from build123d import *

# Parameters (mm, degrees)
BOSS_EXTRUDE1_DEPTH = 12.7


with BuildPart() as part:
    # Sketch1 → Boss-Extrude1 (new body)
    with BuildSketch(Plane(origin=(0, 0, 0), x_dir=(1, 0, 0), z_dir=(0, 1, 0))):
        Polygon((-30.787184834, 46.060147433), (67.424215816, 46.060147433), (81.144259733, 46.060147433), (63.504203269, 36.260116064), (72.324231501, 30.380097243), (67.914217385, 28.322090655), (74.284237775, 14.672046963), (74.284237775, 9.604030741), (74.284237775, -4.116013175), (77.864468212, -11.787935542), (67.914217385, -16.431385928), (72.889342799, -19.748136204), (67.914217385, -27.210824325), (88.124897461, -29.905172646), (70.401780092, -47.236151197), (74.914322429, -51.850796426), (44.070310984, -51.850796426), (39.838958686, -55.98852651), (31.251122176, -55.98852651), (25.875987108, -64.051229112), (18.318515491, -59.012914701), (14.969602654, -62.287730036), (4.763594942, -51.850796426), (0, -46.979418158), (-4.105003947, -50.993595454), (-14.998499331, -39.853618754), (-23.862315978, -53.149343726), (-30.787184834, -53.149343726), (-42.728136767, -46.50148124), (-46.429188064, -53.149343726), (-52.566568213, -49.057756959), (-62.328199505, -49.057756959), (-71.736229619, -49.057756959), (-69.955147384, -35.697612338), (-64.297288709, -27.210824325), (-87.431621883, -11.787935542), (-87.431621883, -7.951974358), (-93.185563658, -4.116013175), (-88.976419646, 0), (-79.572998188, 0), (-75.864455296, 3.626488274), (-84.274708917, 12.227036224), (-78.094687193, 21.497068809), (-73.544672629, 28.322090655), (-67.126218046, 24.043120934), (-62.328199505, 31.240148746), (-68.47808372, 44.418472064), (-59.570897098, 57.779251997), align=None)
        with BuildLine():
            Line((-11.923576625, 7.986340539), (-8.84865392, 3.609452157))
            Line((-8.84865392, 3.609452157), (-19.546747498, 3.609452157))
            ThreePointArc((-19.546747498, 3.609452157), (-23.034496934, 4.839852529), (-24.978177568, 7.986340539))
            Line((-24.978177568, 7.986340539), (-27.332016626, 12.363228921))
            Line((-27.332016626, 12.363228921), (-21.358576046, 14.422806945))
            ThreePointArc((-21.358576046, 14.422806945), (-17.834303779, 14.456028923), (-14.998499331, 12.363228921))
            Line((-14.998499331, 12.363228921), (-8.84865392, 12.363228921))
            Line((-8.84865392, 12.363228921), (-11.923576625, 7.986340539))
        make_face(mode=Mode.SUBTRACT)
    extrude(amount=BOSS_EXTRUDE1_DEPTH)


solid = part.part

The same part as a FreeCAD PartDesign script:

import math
import FreeCAD as App
import Part
import Sketcher
from FreeCAD import Vector
Q = App.Units.Quantity

doc = App.newDocument("Part")
body = doc.addObject("PartDesign::Body", "Body")

sketch1 = body.newObject("Sketcher::SketchObject", "Sketch")
sketch1.AttachmentSupport = (doc.getObject("XZ_Plane"), [""])
sketch1.MapMode = "FlatFace"
sketch1.addGeometry(Part.LineSegment(Vector(81.14426, -46.060147, 0), Vector(-30.787185, -46.060147, 0)), False)
sketch1.addGeometry(Part.LineSegment(Vector(-30.787185, -46.060147, 0), Vector(-59.570897, -57.779252, 0)), False)
sketch1.addGeometry(Part.LineSegment(Vector(-59.570897, -57.779252, 0), Vector(-68.478084, -44.418472, 0)), False)
sketch1.addGeometry(Part.LineSegment(Vector(-68.478084, -44.418472, 0), Vector(-62.3282, -31.240149, 0)), False)
sketch1.addGeometry(Part.LineSegment(Vector(-62.3282, -31.240149, 0), Vector(-67.126218, -24.043121, 0)), False)
sketch1.addGeometry(Part.LineSegment(Vector(-67.126218, -24.043121, 0), Vector(-73.544673, -28.322091, 0)), False)
sketch1.addGeometry(Part.LineSegment(Vector(-73.544673, -28.322091, 0), Vector(-78.094687, -21.497069, 0)), False)
sketch1.addGeometry(Part.LineSegment(Vector(-78.094687, -21.497069, 0), Vector(-84.274709, -12.227036, 0)), False)
sketch1.addGeometry(Part.LineSegment(Vector(-84.274709, -12.227036, 0), Vector(-75.864455, -3.626488, 0)), False)
sketch1.addGeometry(Part.LineSegment(Vector(-75.864455, -3.626488, 0), Vector(-79.572998, 0, 0)), False)
sketch1.addGeometry(Part.LineSegment(Vector(-79.572998, 0, 0), Vector(-88.97642, 0, 0)), False)
sketch1.addGeometry(Part.LineSegment(Vector(-88.97642, 0, 0), Vector(-93.185564, 4.116013, 0)), False)
sketch1.addGeometry(Part.LineSegment(Vector(-93.185564, 4.116013, 0), Vector(-87.431622, 7.951974, 0)), False)
sketch1.addGeometry(Part.LineSegment(Vector(-87.431622, 7.951974, 0), Vector(-87.431622, 11.787936, 0)), False)
sketch1.addGeometry(Part.LineSegment(Vector(-87.431622, 11.787936, 0), Vector(-64.297289, 27.210824, 0)), False)
sketch1.addGeometry(Part.LineSegment(Vector(-64.297289, 27.210824, 0), Vector(-69.955147, 35.697612, 0)), False)
sketch1.addGeometry(Part.LineSegment(Vector(-69.955147, 35.697612, 0), Vector(-71.73623, 49.057757, 0)), False)
sketch1.addGeometry(Part.LineSegment(Vector(-71.73623, 49.057757, 0), Vector(-52.566568, 49.057757, 0)), False)
sketch1.addGeometry(Part.LineSegment(Vector(-52.566568, 49.057757, 0), Vector(-46.429188, 53.149344, 0)), False)
sketch1.addGeometry(Part.LineSegment(Vector(-46.429188, 53.149344, 0), Vector(-42.728137, 46.501481, 0)), False)
sketch1.addGeometry(Part.LineSegment(Vector(-42.728137, 46.501481, 0), Vector(-30.787185, 53.149344, 0)), False)
sketch1.addGeometry(Part.LineSegment(Vector(-30.787185, 53.149344, 0), Vector(-23.862316, 53.149344, 0)), False)
sketch1.addGeometry(Part.LineSegment(Vector(-23.862316, 53.149344, 0), Vector(-14.998499, 39.853619, 0)), False)
sketch1.addGeometry(Part.LineSegment(Vector(-14.998499, 39.853619, 0), Vector(-4.105004, 50.993595, 0)), False)
sketch1.addGeometry(Part.LineSegment(Vector(-4.105004, 50.993595, 0), Vector(0, 46.979418, 0)), False)
sketch1.addGeometry(Part.LineSegment(Vector(0, 46.979418, 0), Vector(4.763595, 51.850796, 0)), False)
sketch1.addGeometry(Part.LineSegment(Vector(4.763595, 51.850796, 0), Vector(14.969603, 62.28773, 0)), False)
sketch1.addGeometry(Part.LineSegment(Vector(14.969603, 62.28773, 0), Vector(18.318515, 59.012915, 0)), False)
sketch1.addGeometry(Part.LineSegment(Vector(18.318515, 59.012915, 0), Vector(25.875987, 64.051229, 0)), False)
sketch1.addGeometry(Part.LineSegment(Vector(25.875987, 64.051229, 0), Vector(31.251122, 55.988527, 0)), False)
sketch1.addGeometry(Part.LineSegment(Vector(31.251122, 55.988527, 0), Vector(39.838959, 55.988527, 0)), False)
sketch1.addGeometry(Part.LineSegment(Vector(39.838959, 55.988527, 0), Vector(44.070311, 51.850796, 0)), False)
sketch1.addGeometry(Part.LineSegment(Vector(44.070311, 51.850796, 0), Vector(74.914322, 51.850796, 0)), False)
sketch1.addGeometry(Part.LineSegment(Vector(74.914322, 51.850796, 0), Vector(70.40178, 47.236151, 0)), False)
sketch1.addGeometry(Part.LineSegment(Vector(70.40178, 47.236151, 0), Vector(88.124897, 29.905173, 0)), False)
sketch1.addGeometry(Part.LineSegment(Vector(88.124897, 29.905173, 0), Vector(67.914217, 27.210824, 0)), False)
sketch1.addGeometry(Part.LineSegment(Vector(67.914217, 27.210824, 0), Vector(72.889343, 19.748136, 0)), False)
sketch1.addGeometry(Part.LineSegment(Vector(72.889343, 19.748136, 0), Vector(67.914217, 16.431386, 0)), False)
sketch1.addGeometry(Part.LineSegment(Vector(67.914217, 16.431386, 0), Vector(77.864468, 11.787936, 0)), False)
sketch1.addGeometry(Part.LineSegment(Vector(77.864468, 11.787936, 0), Vector(74.284238, 4.116013, 0)), False)
sketch1.addGeometry(Part.LineSegment(Vector(74.284238, 4.116013, 0), Vector(74.284238, -14.672047, 0)), False)
sketch1.addGeometry(Part.LineSegment(Vector(74.284238, -14.672047, 0), Vector(67.914217, -28.322091, 0)), False)
sketch1.addGeometry(Part.LineSegment(Vector(67.914217, -28.322091, 0), Vector(72.324232, -30.380097, 0)), False)
sketch1.addGeometry(Part.LineSegment(Vector(72.324232, -30.380097, 0), Vector(63.504203, -36.260116, 0)), False)
sketch1.addGeometry(Part.LineSegment(Vector(63.504203, -36.260116, 0), Vector(81.14426, -46.060147, 0)), False)
sketch1.addGeometry(Part.LineSegment(Vector(-11.923577, -7.986341, 0), Vector(-8.848654, -3.609452, 0)), False)
sketch1.addGeometry(Part.LineSegment(Vector(-8.848654, -3.609452, 0), Vector(-19.546747, -3.609452, 0)), False)
sketch1.addGeometry(Part.ArcOfCircle(Part.Circle(Vector(-19.546747, -9.16792, 0), Vector(0, 0, 1), 5.558468), math.radians(90), math.radians(167.72683)), False)
sketch1.addGeometry(Part.LineSegment(Vector(-24.978178, -7.986341, 0), Vector(-27.332017, -12.363229, 0)), False)
sketch1.addGeometry(Part.LineSegment(Vector(-27.332017, -12.363229, 0), Vector(-21.358576, -14.422807, 0)), False)
sketch1.addGeometry(Part.ArcOfCircle(Part.Circle(Vector(-19.546747, -9.16792, 0), Vector(0, 0, 1), 5.558468), math.radians(-109.023642), math.radians(-35.089431)), False)
sketch1.addGeometry(Part.LineSegment(Vector(-14.998499, -12.363229, 0), Vector(-8.848654, -12.363229, 0)), False)
sketch1.addGeometry(Part.LineSegment(Vector(-8.848654, -12.363229, 0), Vector(-11.923577, -7.986341, 0)), False)
sketch1.addConstraint(Sketcher.Constraint("Coincident", 0, 2, 1, 1))
sketch1.addConstraint(Sketcher.Constraint("Coincident", 1, 2, 2, 1))
sketch1.addConstraint(Sketcher.Constraint("Coincident", 2, 2, 3, 1))
sketch1.addConstraint(Sketcher.Constraint("Coincident", 3, 2, 4, 1))
sketch1.addConstraint(Sketcher.Constraint("Coincident", 4, 2, 5, 1))
sketch1.addConstraint(Sketcher.Constraint("Coincident", 5, 2, 6, 1))
sketch1.addConstraint(Sketcher.Constraint("Coincident", 6, 2, 7, 1))
sketch1.addConstraint(Sketcher.Constraint("Coincident", 7, 2, 8, 1))
sketch1.addConstraint(Sketcher.Constraint("Coincident", 8, 2, 9, 1))
sketch1.addConstraint(Sketcher.Constraint("Coincident", 9, 2, 10, 1))
sketch1.addConstraint(Sketcher.Constraint("Coincident", 10, 2, 11, 1))
sketch1.addConstraint(Sketcher.Constraint("Coincident", 11, 2, 12, 1))
sketch1.addConstraint(Sketcher.Constraint("Coincident", 12, 2, 13, 1))
sketch1.addConstraint(Sketcher.Constraint("Coincident", 13, 2, 14, 1))
sketch1.addConstraint(Sketcher.Constraint("Coincident", 14, 2, 15, 1))
sketch1.addConstraint(Sketcher.Constraint("Coincident", 15, 2, 16, 1))
sketch1.addConstraint(Sketcher.Constraint("Coincident", 16, 2, 17, 1))
sketch1.addConstraint(Sketcher.Constraint("Coincident", 17, 2, 18, 1))
sketch1.addConstraint(Sketcher.Constraint("Coincident", 18, 2, 19, 1))
sketch1.addConstraint(Sketcher.Constraint("Coincident", 19, 2, 20, 1))
sketch1.addConstraint(Sketcher.Constraint("Coincident", 20, 2, 21, 1))
sketch1.addConstraint(Sketcher.Constraint("Coincident", 21, 2, 22, 1))
sketch1.addConstraint(Sketcher.Constraint("Coincident", 22, 2, 23, 1))
sketch1.addConstraint(Sketcher.Constraint("Coincident", 23, 2, 24, 1))
sketch1.addConstraint(Sketcher.Constraint("Coincident", 24, 2, 25, 1))
sketch1.addConstraint(Sketcher.Constraint("Coincident", 25, 2, 26, 1))
sketch1.addConstraint(Sketcher.Constraint("Coincident", 26, 2, 27, 1))
sketch1.addConstraint(Sketcher.Constraint("Coincident", 27, 2, 28, 1))
sketch1.addConstraint(Sketcher.Constraint("Coincident", 28, 2, 29, 1))
sketch1.addConstraint(Sketcher.Constraint("Coincident", 29, 2, 30, 1))
sketch1.addConstraint(Sketcher.Constraint("Coincident", 30, 2, 31, 1))
sketch1.addConstraint(Sketcher.Constraint("Coincident", 31, 2, 32, 1))
sketch1.addConstraint(Sketcher.Constraint("Coincident", 32, 2, 33, 1))
sketch1.addConstraint(Sketcher.Constraint("Coincident", 33, 2, 34, 1))
sketch1.addConstraint(Sketcher.Constraint("Coincident", 34, 2, 35, 1))
sketch1.addConstraint(Sketcher.Constraint("Coincident", 35, 2, 36, 1))
sketch1.addConstraint(Sketcher.Constraint("Coincident", 36, 2, 37, 1))
sketch1.addConstraint(Sketcher.Constraint("Coincident", 37, 2, 38, 1))
sketch1.addConstraint(Sketcher.Constraint("Coincident", 38, 2, 39, 1))
sketch1.addConstraint(Sketcher.Constraint("Coincident", 39, 2, 40, 1))
sketch1.addConstraint(Sketcher.Constraint("Coincident", 40, 2, 41, 1))
sketch1.addConstraint(Sketcher.Constraint("Coincident", 41, 2, 42, 1))
sketch1.addConstraint(Sketcher.Constraint("Coincident", 42, 2, 43, 1))
sketch1.addConstraint(Sketcher.Constraint("Coincident", 43, 2, 44, 1))
sketch1.addConstraint(Sketcher.Constraint("Coincident", 44, 2, 0, 1))
sketch1.addConstraint(Sketcher.Constraint("Coincident", 45, 2, 46, 1))
sketch1.addConstraint(Sketcher.Constraint("Coincident", 46, 2, 47, 1))
sketch1.addConstraint(Sketcher.Constraint("Coincident", 47, 2, 48, 1))
sketch1.addConstraint(Sketcher.Constraint("Coincident", 48, 2, 49, 1))
sketch1.addConstraint(Sketcher.Constraint("Coincident", 49, 2, 50, 1))
sketch1.addConstraint(Sketcher.Constraint("Coincident", 50, 2, 51, 1))
sketch1.addConstraint(Sketcher.Constraint("Coincident", 51, 2, 52, 1))
sketch1.addConstraint(Sketcher.Constraint("Coincident", 52, 2, 45, 1))
sketch1.addConstraint(Sketcher.Constraint("Horizontal", 0))
sketch1.addConstraint(Sketcher.Constraint("Horizontal", 10))
sketch1.addConstraint(Sketcher.Constraint("Vertical", 13))
sketch1.addConstraint(Sketcher.Constraint("Horizontal", 17))
sketch1.addConstraint(Sketcher.Constraint("Horizontal", 21))
sketch1.addConstraint(Sketcher.Constraint("Horizontal", 30))
sketch1.addConstraint(Sketcher.Constraint("Horizontal", 32))
sketch1.addConstraint(Sketcher.Constraint("Vertical", 40))
sketch1.addConstraint(Sketcher.Constraint("Horizontal", 46))
sketch1.addConstraint(Sketcher.Constraint("Horizontal", 51))
sketch1.addConstraint(Sketcher.Constraint("Coincident", 50, 3, 47, 3))
sketch1.addConstraint(Sketcher.Constraint("PointOnObject", 9, 2, -1))
sketch1.addConstraint(Sketcher.Constraint("PointOnObject", 24, 2, -2))
sketch1.addConstraint(Sketcher.Constraint("DistanceY", 29, 2, 26, 2, Q("0.2480001 in")))
sketch1.addConstraint(Sketcher.Constraint("Radius", 47, 5.558468))
sketch1.addConstraint(Sketcher.Constraint("Radius", 50, 5.558468))
sketch1.addConstraint(Sketcher.Constraint("DistanceY", 4, 2, 7, 2, Q("0.4652002 in")))
sketch1.addConstraint(Sketcher.Constraint("Distance", 33, 6.4543))
sketch1.addConstraint(Sketcher.Constraint("Distance", 44, 20.1795))
sketch1.addConstraint(Sketcher.Constraint("DistanceX", 10, 2, 10, 1, 9.403421))
sketch1.addConstraint(Sketcher.Constraint("DistanceX", 17, 1, 17, 2, 19.169661))
sketch1.addConstraint(Sketcher.Constraint("DistanceX", 21, 1, 21, 2, 6.924869))
sketch1.addConstraint(Sketcher.Constraint("DistanceX", 32, 1, 32, 2, 30.844011))
sketch1.addConstraint(Sketcher.Constraint("DistanceY", 13, 1, 13, 2, 3.835961))
sketch1.addConstraint(Sketcher.Constraint("DistanceY", 40, 2, 40, 1, 18.78806))
sketch1.addConstraint(Sketcher.Constraint("DistanceX", 3, 2, -1, 1, 62.3282))
sketch1.addConstraint(Sketcher.Constraint("DistanceX", 9, 2, -1, 1, 79.572998))
sketch1.addConstraint(Sketcher.Constraint("DistanceX", 22, 2, -1, 1, 14.998499))
sketch1.addConstraint(Sketcher.Constraint("DistanceX", 50, 2, -1, 1, 14.998499))
sketch1.addConstraint(Sketcher.Constraint("DistanceX", 2, 2, 0, 2, 37.690899))
sketch1.addConstraint(Sketcher.Constraint("DistanceY", 0, 2, 3, 2, 14.819999))
sketch1.addConstraint(Sketcher.Constraint("DistanceY", 4, 2, 50, 3, 14.875201))
sketch1.addConstraint(Sketcher.Constraint("DistanceY", 8, 2, 11, 2, 7.742501))
sketch1.addConstraint(Sketcher.Constraint("DistanceY", 11, 2, 15, 2, 31.581599))
sketch1.addConstraint(Sketcher.Constraint("DistanceX", 14, 2, 18, 2, 17.868101))
sketch1.addConstraint(Sketcher.Constraint("DistanceY", 22, 2, 24, 2, 7.125799))
sketch1.addConstraint(Sketcher.Constraint("DistanceX", 23, 2, 25, 2, 8.868599))
sketch1.addConstraint(Sketcher.Constraint("DistanceY", 23, 2, 25, 2, 0.857201))
sketch1.addConstraint(Sketcher.Constraint("DistanceX", 22, 2, 26, 2, 29.968102))
sketch1.addConstraint(Sketcher.Constraint("DistanceY", 26, 2, 28, 2, 1.763499))
sketch1.addConstraint(Sketcher.Constraint("DistanceX", 29, 2, 32, 2, 43.6632))
sketch1.addConstraint(Sketcher.Constraint("DistanceY", 38, 2, 36, 2, 7.960201))
sketch1.addConstraint(Sketcher.Constraint("DistanceY", 44, 2, 40, 2, 31.3881))
sketch1.addConstraint(Sketcher.Constraint("DistanceX", 47, 2, 49, 2, 3.619602))
sketch1.addConstraint(Sketcher.Constraint("Distance", 1, 31.077958))
sketch1.addConstraint(Sketcher.Constraint("Distance", 2, 16.057659))
sketch1.addConstraint(Sketcher.Constraint("Distance", 3, 14.542671))
sketch1.addConstraint(Sketcher.Constraint("Distance", 4, 8.649751))
sketch1.addConstraint(Sketcher.Constraint("Distance", 14, 27.804008))
sketch1.addConstraint(Sketcher.Constraint("Distance", 15, 10.19985))
sketch1.addConstraint(Sketcher.Constraint("Distance", 19, 7.60867))
sketch1.addConstraint(Sketcher.Constraint("Distance", 25, 6.813381))
sketch1.addConstraint(Sketcher.Constraint("Distance", 28, 9.08295))
sketch1.addConstraint(Sketcher.Constraint("Distance", 34, 24.78854))
sketch1.addConstraint(Sketcher.Constraint("Distance", 41, 15.063228))
sketch1.addConstraint(Sketcher.Constraint("Distance", 42, 4.866582))
sketch1.addConstraint(Sketcher.Constraint("Distance", 48, 4.969679))
sketch1.addConstraint(Sketcher.Constraint("DistanceX", 0, 2, 0, 1, 111.931445))
sketch1.addConstraint(Sketcher.Constraint("DistanceX", 30, 1, 30, 2, 8.587837))
sketch1.addConstraint(Sketcher.Constraint("DistanceX", 46, 2, 46, 1, 10.698094))
sketch1.addConstraint(Sketcher.Constraint("DistanceX", 51, 1, 51, 2, 6.149845))
sketch1.addConstraint(Sketcher.Constraint("DistanceY", 47, 3, -1, 1, 9.16792))
sketch1.addConstraint(Sketcher.Constraint("DistanceY", 1, 2, -1, 1, 57.779252))
sketch1.addConstraint(Sketcher.Constraint("DistanceY", 3, 2, -1, 1, 31.240149))
sketch1.addConstraint(Sketcher.Constraint("DistanceY", 5, 2, -1, 1, 28.322091))
sketch1.addConstraint(Sketcher.Constraint("DistanceY", 6, 2, -1, 1, 21.497069))
sketch1.addConstraint(Sketcher.Constraint("DistanceX", 7, 2, -1, 1, 84.274709))
sketch1.addConstraint(Sketcher.Constraint("DistanceY", 8, 2, -1, 1, 3.626488))
sketch1.addConstraint(Sketcher.Constraint("DistanceX", 12, 2, -1, 1, 87.431622))
sketch1.addConstraint(Sketcher.Constraint("DistanceX", 14, 2, -1, 1, 64.297289))
sketch1.addConstraint(Sketcher.Constraint("DistanceX", 16, 2, -1, 1, 71.73623))
sketch1.addConstraint(Sketcher.Constraint("DistanceY", -1, 1, 19, 2, 46.501481))
sketch1.addConstraint(Sketcher.Constraint("DistanceY", -1, 1, 22, 2, 39.853619))
sketch1.addConstraint(Sketcher.Constraint("DistanceY", -1, 1, 26, 2, 62.28773))
sketch1.addConstraint(Sketcher.Constraint("DistanceX", -1, 1, 30, 2, 39.838959))
sketch1.addConstraint(Sketcher.Constraint("DistanceX", -1, 1, 33, 2, 70.40178))
sketch1.addConstraint(Sketcher.Constraint("DistanceY", -1, 1, 33, 2, 47.236151))
sketch1.addConstraint(Sketcher.Constraint("DistanceX", -1, 1, 38, 2, 77.864468))
sketch1.addConstraint(Sketcher.Constraint("DistanceY", 41, 2, -1, 1, 28.322091))
sketch1.addConstraint(Sketcher.Constraint("DistanceX", -1, 1, 42, 2, 72.324232))
sketch1.addConstraint(Sketcher.Constraint("DistanceY", 47, 2, -1, 1, 7.986341))
sketch1.addConstraint(Sketcher.Constraint("DistanceY", 48, 2, -1, 1, 12.363229))
sketch1.addConstraint(Sketcher.Constraint("DistanceY", 50, 2, -1, 1, 12.363229))
sketch1.addConstraint(Sketcher.Constraint("DistanceY", 52, 2, -1, 1, 7.986341))
sketch1.addConstraint(Sketcher.Constraint("DistanceX", 5, 2, 2, 2, 5.066589))
sketch1.addConstraint(Sketcher.Constraint("DistanceX", 6, 2, 4, 2, 10.968469))
sketch1.addConstraint(Sketcher.Constraint("DistanceX", 6, 2, 8, 2, 2.230232))
sketch1.addConstraint(Sketcher.Constraint("DistanceX", 11, 2, 8, 2, 17.321108))
sketch1.addConstraint(Sketcher.Constraint("DistanceY", 11, 2, 12, 2, 3.835961))
sketch1.addConstraint(Sketcher.Constraint("DistanceY", 13, 2, 16, 2, 37.269821))
sketch1.addConstraint(Sketcher.Constraint("DistanceY", 15, 2, 18, 2, 17.451731))
sketch1.addConstraint(Sketcher.Constraint("DistanceX", 19, 2, 20, 2, 11.940952))
sketch1.addConstraint(Sketcher.Constraint("DistanceY", 14, 2, 20, 2, 25.938519))
sketch1.addConstraint(Sketcher.Constraint("DistanceY", 23, 2, 21, 2, 2.155748))
sketch1.addConstraint(Sketcher.Constraint("DistanceX", 25, 2, 27, 2, 13.554921))
sketch1.addConstraint(Sketcher.Constraint("DistanceY", 25, 2, 27, 2, 7.162118))
sketch1.addConstraint(Sketcher.Constraint("DistanceY", 34, 2, 33, 2, 17.330979))
sketch1.addConstraint(Sketcher.Constraint("DistanceX", 35, 2, 34, 2, 20.21068))
sketch1.addConstraint(Sketcher.Constraint("DistanceY", 35, 2, 34, 2, 2.694348))
sketch1.addConstraint(Sketcher.Constraint("DistanceY", 36, 2, 35, 2, 7.462688))
sketch1.addConstraint(Sketcher.Constraint("DistanceX", 36, 2, 32, 2, 2.02498))
sketch1.addConstraint(Sketcher.Constraint("DistanceY", 37, 2, 36, 2, 3.31675))
sketch1.addConstraint(Sketcher.Constraint("DistanceX", 37, 2, 34, 2, 20.21068))
sketch1.addConstraint(Sketcher.Constraint("DistanceX", 39, 2, 38, 2, 3.58023))
sketch1.addConstraint(Sketcher.Constraint("DistanceX", 43, 2, 42, 2, 8.820028))
sketch1.addConstraint(Sketcher.Constraint("DistanceX", 0, 2, 45, 2, 21.938531))
sketch1.addConstraint(Sketcher.Constraint("DistanceX", 47, 3, 52, 2, 7.623171))
pad1 = body.newObject("PartDesign::Pad", "Pad")
pad1.Profile = sketch1
pad1.Length = Q("0.5 in")
pad1.Reversed = True

doc.recompute()
